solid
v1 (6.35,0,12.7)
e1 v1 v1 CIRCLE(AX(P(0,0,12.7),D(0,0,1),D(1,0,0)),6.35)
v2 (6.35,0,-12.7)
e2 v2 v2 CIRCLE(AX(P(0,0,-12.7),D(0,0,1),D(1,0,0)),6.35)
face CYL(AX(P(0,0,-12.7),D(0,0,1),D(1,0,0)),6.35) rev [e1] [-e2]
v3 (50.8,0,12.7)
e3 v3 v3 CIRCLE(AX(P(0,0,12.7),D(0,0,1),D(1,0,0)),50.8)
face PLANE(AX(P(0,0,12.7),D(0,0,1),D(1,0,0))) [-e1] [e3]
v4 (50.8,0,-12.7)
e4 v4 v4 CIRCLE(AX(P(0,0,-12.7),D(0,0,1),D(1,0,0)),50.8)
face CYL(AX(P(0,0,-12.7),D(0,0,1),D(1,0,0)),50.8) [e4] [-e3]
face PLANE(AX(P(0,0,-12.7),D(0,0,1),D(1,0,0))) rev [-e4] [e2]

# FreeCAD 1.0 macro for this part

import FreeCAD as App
import Part
import Sketcher
Q = App.Units.Quantity

doc = App.newDocument("Part")
body = doc.addObject("PartDesign::Body", "Body")

# Sketch on XY plane
sketch1 = doc.addObject("Sketcher::SketchObject", "Sketch")
body.addObject(sketch1)
sketch1.AttachmentSupport = (doc.XY_Plane, [""])
sketch1.MapMode = "FlatFace"
sketch1.addGeometry([
    Part.Circle(App.Vector(0, 0, 0), App.Vector(0, 0, 1), 50.8),
    Part.Circle(App.Vector(0, 0, 0), App.Vector(0, 0, 1), 6.35),
], False)
sketch1.addConstraint([
    Sketcher.Constraint("Coincident", 0, 3, -1, 1),
    Sketcher.Constraint("Coincident", 1, 3, -1, 1),
    Sketcher.Constraint("Diameter", 0, Q("4 in")),
    Sketcher.Constraint("Diameter", 1, Q("0.5 in")),
])
pad1 = doc.addObject("PartDesign::Pad", "Pad")
body.addObject(pad1)
pad1.Profile = sketch1
pad1.Length = Q("1 in")
pad1.Midplane = True

doc.recompute()
